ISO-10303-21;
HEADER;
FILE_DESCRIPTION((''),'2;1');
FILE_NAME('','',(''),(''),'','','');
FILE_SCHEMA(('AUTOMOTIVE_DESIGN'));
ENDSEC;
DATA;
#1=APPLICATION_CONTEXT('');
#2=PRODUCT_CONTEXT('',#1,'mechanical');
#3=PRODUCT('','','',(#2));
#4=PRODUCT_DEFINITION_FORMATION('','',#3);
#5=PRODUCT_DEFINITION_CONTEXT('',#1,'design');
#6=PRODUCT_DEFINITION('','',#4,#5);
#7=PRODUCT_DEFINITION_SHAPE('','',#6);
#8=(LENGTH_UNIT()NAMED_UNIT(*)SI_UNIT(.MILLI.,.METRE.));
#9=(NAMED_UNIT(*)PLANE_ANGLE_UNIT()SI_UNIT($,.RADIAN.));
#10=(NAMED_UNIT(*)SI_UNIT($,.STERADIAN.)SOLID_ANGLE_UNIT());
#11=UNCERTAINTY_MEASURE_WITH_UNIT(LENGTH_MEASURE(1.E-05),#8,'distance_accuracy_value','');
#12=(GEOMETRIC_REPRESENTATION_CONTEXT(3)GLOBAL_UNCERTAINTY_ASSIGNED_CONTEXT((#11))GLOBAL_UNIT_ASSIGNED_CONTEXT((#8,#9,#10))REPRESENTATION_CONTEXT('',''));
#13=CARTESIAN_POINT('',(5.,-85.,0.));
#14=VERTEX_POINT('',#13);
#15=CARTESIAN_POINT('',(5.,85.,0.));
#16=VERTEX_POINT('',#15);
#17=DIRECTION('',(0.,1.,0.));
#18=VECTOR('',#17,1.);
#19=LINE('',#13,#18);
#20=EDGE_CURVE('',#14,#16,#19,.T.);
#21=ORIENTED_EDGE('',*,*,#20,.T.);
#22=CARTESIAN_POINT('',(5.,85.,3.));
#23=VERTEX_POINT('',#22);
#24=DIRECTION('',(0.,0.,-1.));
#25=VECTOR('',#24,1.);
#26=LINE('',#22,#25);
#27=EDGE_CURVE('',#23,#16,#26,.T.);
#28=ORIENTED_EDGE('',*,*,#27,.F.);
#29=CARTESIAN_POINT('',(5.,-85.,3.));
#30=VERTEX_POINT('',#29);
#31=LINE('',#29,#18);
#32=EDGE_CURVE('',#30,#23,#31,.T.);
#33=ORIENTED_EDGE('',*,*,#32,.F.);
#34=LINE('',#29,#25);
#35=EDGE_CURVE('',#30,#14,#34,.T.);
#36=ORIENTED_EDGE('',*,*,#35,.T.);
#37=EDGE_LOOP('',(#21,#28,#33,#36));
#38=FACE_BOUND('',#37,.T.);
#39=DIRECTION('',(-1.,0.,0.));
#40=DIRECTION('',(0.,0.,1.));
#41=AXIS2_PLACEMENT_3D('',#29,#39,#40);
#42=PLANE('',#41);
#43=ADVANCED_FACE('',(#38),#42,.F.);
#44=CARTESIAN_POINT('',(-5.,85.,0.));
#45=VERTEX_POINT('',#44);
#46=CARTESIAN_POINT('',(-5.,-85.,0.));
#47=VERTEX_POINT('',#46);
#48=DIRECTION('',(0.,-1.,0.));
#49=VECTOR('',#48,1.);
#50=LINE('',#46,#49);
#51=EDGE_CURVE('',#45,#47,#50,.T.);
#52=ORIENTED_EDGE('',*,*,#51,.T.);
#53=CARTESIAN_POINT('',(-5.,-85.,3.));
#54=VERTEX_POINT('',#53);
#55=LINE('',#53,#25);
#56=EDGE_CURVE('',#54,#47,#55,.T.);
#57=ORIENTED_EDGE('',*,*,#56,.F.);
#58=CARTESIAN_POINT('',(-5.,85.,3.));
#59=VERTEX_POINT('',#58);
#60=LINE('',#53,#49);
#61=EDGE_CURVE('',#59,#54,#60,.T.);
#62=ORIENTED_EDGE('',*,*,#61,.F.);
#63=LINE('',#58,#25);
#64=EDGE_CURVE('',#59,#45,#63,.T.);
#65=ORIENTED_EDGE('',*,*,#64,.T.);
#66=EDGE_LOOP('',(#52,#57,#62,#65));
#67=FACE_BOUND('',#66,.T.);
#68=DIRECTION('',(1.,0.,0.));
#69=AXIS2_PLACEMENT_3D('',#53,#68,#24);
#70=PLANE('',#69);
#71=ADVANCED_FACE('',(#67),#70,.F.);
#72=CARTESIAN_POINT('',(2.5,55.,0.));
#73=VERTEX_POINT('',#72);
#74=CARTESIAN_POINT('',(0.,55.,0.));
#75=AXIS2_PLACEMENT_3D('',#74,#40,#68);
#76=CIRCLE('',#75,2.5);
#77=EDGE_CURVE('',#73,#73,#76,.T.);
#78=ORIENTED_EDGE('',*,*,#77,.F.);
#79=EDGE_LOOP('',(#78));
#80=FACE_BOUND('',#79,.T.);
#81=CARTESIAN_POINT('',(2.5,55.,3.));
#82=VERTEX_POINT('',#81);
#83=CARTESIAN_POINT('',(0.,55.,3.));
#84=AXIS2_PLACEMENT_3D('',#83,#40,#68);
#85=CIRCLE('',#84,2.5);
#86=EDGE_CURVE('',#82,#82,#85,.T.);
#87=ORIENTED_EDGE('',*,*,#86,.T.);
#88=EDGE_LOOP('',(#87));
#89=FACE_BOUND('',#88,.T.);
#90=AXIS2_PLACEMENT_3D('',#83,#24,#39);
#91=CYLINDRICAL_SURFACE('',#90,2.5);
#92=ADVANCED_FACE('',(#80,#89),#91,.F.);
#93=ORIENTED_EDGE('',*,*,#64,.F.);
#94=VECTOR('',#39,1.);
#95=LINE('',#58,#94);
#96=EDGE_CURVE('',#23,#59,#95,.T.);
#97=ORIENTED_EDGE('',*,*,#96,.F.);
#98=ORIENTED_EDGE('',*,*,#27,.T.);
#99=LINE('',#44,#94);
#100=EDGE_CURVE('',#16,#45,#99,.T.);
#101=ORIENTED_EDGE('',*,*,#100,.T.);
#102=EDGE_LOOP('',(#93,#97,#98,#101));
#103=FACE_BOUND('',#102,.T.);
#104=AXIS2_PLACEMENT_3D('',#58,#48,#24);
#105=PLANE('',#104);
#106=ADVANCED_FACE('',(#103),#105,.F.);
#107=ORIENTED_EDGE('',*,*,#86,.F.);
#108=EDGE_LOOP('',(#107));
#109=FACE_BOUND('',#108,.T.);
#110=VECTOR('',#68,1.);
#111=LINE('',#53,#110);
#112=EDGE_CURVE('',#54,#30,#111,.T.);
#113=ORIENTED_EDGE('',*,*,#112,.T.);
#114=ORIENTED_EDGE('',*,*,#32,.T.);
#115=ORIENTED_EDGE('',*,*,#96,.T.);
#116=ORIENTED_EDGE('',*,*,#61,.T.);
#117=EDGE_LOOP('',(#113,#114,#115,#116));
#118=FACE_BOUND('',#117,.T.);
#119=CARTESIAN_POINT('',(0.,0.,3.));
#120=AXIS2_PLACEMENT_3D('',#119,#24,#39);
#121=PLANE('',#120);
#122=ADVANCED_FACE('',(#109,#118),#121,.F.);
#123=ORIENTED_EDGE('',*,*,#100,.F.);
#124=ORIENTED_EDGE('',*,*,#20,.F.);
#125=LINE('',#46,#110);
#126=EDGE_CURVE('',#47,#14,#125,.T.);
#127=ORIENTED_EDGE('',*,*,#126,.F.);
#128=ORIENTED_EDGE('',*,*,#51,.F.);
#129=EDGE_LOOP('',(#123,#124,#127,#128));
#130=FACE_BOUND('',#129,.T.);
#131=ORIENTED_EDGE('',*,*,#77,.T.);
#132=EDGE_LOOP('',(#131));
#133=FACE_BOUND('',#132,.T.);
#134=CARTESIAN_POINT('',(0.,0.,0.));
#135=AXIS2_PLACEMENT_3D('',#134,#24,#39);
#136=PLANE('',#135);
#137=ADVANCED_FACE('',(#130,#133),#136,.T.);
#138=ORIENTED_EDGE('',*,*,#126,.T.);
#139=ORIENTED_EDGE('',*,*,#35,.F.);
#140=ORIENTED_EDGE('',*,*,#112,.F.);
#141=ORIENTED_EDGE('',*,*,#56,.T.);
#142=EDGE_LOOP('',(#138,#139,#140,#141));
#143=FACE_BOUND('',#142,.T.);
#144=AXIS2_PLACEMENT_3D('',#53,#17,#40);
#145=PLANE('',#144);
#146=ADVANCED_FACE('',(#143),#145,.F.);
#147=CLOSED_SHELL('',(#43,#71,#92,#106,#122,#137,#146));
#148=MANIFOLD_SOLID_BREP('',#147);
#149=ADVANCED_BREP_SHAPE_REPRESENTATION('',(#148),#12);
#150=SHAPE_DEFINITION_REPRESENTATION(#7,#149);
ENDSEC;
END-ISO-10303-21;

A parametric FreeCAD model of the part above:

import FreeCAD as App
import Part
import Sketcher
from FreeCAD import Vector

doc = App.newDocument("Part")
body = doc.addObject("PartDesign::Body", "Body")

sketch1 = body.newObject("Sketcher::SketchObject", "Sketch")
sketch1.AttachmentSupport = (doc.getObject("XY_Plane"), [""])
sketch1.MapMode = "FlatFace"
sketch1.addGeometry(Part.LineSegment(Vector(-5, 85, 0), Vector(-5, -85, 0)), False)
sketch1.addGeometry(Part.LineSegment(Vector(-5, -85, 0), Vector(5, -85, 0)), False)
sketch1.addGeometry(Part.LineSegment(Vector(5, -85, 0), Vector(5, 85, 0)), False)
sketch1.addGeometry(Part.LineSegment(Vector(5, 85, 0), Vector(-5, 85, 0)), False)
sketch1.addGeometry(Part.Circle(Vector(0, 55, 0), Vector(0, 0, 1), 2.5), False)
sketch1.addConstraint(Sketcher.Constraint("Coincident", 0, 2, 1, 1))
sketch1.addConstraint(Sketcher.Constraint("Coincident", 1, 2, 2, 1))
sketch1.addConstraint(Sketcher.Constraint("Coincident", 2, 2, 3, 1))
sketch1.addConstraint(Sketcher.Constraint("Coincident", 3, 2, 0, 1))
sketch1.addConstraint(Sketcher.Constraint("Vertical", 0))
sketch1.addConstraint(Sketcher.Constraint("Horizontal", 1))
sketch1.addConstraint(Sketcher.Constraint("Vertical", 2))
sketch1.addConstraint(Sketcher.Constraint("Horizontal", 3))
sketch1.addConstraint(Sketcher.Constraint("Symmetric", 0, 2, 2, 2, -1, 1))
sketch1.addConstraint(Sketcher.Constraint("PointOnObject", 4, 3, -2))
sketch1.addConstraint(Sketcher.Constraint("Diameter", 4, 5.0))
sketch1.addConstraint(Sketcher.Constraint("DistanceX", 1, 1, 1, 2, 10.0))
sketch1.addConstraint(Sketcher.Constraint("DistanceY", 0, 2, 0, 1, 170.0))
sketch1.addConstraint(Sketcher.Constraint("DistanceY", -1, 1, 4, 3, 55.0))
pad1 = body.newObject("PartDesign::Pad", "Pad")
pad1.Profile = sketch1
pad1.Length = 3

doc.recompute()
